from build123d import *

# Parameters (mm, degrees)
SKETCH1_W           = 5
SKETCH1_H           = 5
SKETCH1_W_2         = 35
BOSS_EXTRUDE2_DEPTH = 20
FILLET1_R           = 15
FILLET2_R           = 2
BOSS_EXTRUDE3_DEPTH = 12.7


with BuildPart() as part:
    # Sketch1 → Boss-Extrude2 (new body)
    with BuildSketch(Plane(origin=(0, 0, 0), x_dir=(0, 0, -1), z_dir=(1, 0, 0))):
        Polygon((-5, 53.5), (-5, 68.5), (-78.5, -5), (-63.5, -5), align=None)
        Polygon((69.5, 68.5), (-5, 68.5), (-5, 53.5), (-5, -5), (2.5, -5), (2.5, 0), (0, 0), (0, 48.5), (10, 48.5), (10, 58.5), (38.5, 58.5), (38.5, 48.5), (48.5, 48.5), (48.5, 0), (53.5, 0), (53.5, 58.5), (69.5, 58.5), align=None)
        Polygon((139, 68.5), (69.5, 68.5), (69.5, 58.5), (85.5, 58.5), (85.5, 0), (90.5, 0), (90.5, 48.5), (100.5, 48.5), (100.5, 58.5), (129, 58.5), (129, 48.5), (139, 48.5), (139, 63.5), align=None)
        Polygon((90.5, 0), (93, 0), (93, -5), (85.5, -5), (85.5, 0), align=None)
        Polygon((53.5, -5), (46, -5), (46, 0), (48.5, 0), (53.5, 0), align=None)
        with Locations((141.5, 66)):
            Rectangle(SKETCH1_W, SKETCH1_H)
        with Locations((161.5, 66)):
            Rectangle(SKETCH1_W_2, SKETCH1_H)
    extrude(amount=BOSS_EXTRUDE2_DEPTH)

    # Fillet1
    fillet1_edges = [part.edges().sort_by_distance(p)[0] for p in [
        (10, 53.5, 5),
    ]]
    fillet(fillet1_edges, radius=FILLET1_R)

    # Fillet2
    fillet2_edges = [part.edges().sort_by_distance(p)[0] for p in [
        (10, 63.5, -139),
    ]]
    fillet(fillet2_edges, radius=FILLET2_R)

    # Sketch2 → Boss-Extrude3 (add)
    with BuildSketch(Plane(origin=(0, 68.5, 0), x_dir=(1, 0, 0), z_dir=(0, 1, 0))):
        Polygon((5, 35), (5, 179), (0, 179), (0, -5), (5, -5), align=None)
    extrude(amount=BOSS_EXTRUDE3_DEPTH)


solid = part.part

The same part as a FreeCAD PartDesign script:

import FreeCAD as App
import Part
import Sketcher
from FreeCAD import Vector
Q = App.Units.Quantity


def edges_at(feature, points):
    """Names of the edges that pass closest to the given points."""
    edges = feature.Shape.Edges
    near = lambda p: min(range(len(edges)), key=lambda i: edges[i].distToShape(Part.Vertex(*p))[0])
    return sorted({f"Edge{near(p) + 1}" for p in points})

doc = App.newDocument("Part")
params = doc.addObject("Spreadsheet::Sheet", "Params")
for row, (alias, value) in enumerate([
    ("sketch1_width", "5 mm"),
    ("sketch1_width2", "10 mm"),
    ("sketch1_width3", "15 mm"),
    ("sketch1_height", "32 mm"),
    ("sketch1_height2", "40 mm"),
    ("pad1_length", "20 mm"),
    ("fillet_radius", "15 mm"),
    ("fillet2_radius", "2 mm"),
    ("sketch2_width", "5 mm"),
    ("sketch2_height", "184 mm"),
    ("pad2_length", "12.7 mm"),
], start=1):
    params.set(f"A{row}", alias)
    params.set(f"B{row}", "=" + value)
    params.setAlias(f"B{row}", alias)

body = doc.addObject("PartDesign::Body", "Body")

# Sketch on YZ plane
sketch1 = body.newObject("Sketcher::SketchObject", "Sketch")
sketch1.AttachmentSupport = (doc.getObject("YZ_Plane"), [""])
sketch1.MapMode = "FlatFace"
sketch1.addGeometry([
    Part.LineSegment(Vector(68.5, 5, 0), Vector(-5, 78.5, 0)),  # 0
    Part.LineSegment(Vector(-5, 78.5, 0), Vector(-5, 63.5, 0)),  # 1
    Part.LineSegment(Vector(-5, 63.5, 0), Vector(53.5, 5, 0)),  # 2
    Part.LineSegment(Vector(53.5, 5, 0), Vector(-5, 5, 0)),  # 3
    Part.LineSegment(Vector(-5, 5, 0), Vector(-5, -2.5, 0)),  # 4
    Part.LineSegment(Vector(-5, -2.5, 0), Vector(0, -2.5, 0)),  # 5
    Part.LineSegment(Vector(0, -2.5, 0), Vector(0, 0, 0)),  # 6
    Part.LineSegment(Vector(0, 0, 0), Vector(48.5, 0, 0)),  # 7
    Part.LineSegment(Vector(48.5, 0, 0), Vector(48.5, -10, 0)),  # 8
    Part.LineSegment(Vector(48.5, -10, 0), Vector(58.5, -10, 0)),  # 9
    Part.LineSegment(Vector(58.5, -10, 0), Vector(58.5, -38.5, 0)),  # 10
    Part.LineSegment(Vector(58.5, -38.5, 0), Vector(48.5, -38.5, 0)),  # 11
    Part.LineSegment(Vector(48.5, -38.5, 0), Vector(48.5, -48.5, 0)),  # 12
    Part.LineSegment(Vector(48.5, -48.5, 0), Vector(0, -48.5, 0)),  # 13
    Part.LineSegment(Vector(0, -48.5, 0), Vector(0, -46, 0)),  # 14
    Part.LineSegment(Vector(0, -46, 0), Vector(-5, -46, 0)),  # 15
    Part.LineSegment(Vector(-5, -46, 0), Vector(-5, -53.5, 0)),  # 16
    Part.LineSegment(Vector(-5, -53.5, 0), Vector(58.5, -53.5, 0)),  # 17
    Part.LineSegment(Vector(58.5, -53.5, 0), Vector(58.5, -85.5, 0)),  # 18
    Part.LineSegment(Vector(58.5, -85.5, 0), Vector(-5, -85.5, 0)),  # 19
    Part.LineSegment(Vector(-5, -85.5, 0), Vector(-5, -93, 0)),  # 20
    Part.LineSegment(Vector(-5, -93, 0), Vector(0, -93, 0)),  # 21
    Part.LineSegment(Vector(0, -93, 0), Vector(0, -90.5, 0)),  # 22
    Part.LineSegment(Vector(0, -90.5, 0), Vector(48.5, -90.5, 0)),  # 23
    Part.LineSegment(Vector(48.5, -90.5, 0), Vector(48.5, -100.5, 0)),  # 24
    Part.LineSegment(Vector(48.5, -100.5, 0), Vector(58.5, -100.5, 0)),  # 25
    Part.LineSegment(Vector(58.5, -100.5, 0), Vector(58.5, -129, 0)),  # 26
    Part.LineSegment(Vector(58.5, -129, 0), Vector(48.5, -129, 0)),  # 27
    Part.LineSegment(Vector(48.5, -129, 0), Vector(48.5, -139, 0)),  # 28
    Part.LineSegment(Vector(48.5, -139, 0), Vector(63.5, -139, 0)),  # 29
    Part.LineSegment(Vector(63.5, -139, 0), Vector(63.5, -179, 0)),  # 30
    Part.LineSegment(Vector(63.5, -179, 0), Vector(68.5, -179, 0)),  # 31
    Part.LineSegment(Vector(68.5, -179, 0), Vector(68.5, 5, 0)),  # 32
], False)
sketch1.addConstraint([
    Sketcher.Constraint("Coincident", 0, 2, 1, 1),
    Sketcher.Constraint("Coincident", 1, 2, 2, 1),
    Sketcher.Constraint("Coincident", 2, 2, 3, 1),
    Sketcher.Constraint("Coincident", 3, 2, 4, 1),
    Sketcher.Constraint("Coincident", 4, 2, 5, 1),
    Sketcher.Constraint("Coincident", 5, 2, 6, 1),
    Sketcher.Constraint("Coincident", 6, 2, 7, 1),
    Sketcher.Constraint("Coincident", 7, 2, 8, 1),
    Sketcher.Constraint("Coincident", 8, 2, 9, 1),
    Sketcher.Constraint("Coincident", 9, 2, 10, 1),
    Sketcher.Constraint("Coincident", 10, 2, 11, 1),
    Sketcher.Constraint("Coincident", 11, 2, 12, 1),
    Sketcher.Constraint("Coincident", 12, 2, 13, 1),
    Sketcher.Constraint("Coincident", 13, 2, 14, 1),
    Sketcher.Constraint("Coincident", 14, 2, 15, 1),
    Sketcher.Constraint("Coincident", 15, 2, 16, 1),
    Sketcher.Constraint("Coincident", 16, 2, 17, 1),
    Sketcher.Constraint("Coincident", 17, 2, 18, 1),
    Sketcher.Constraint("Coincident", 18, 2, 19, 1),
    Sketcher.Constraint("Coincident", 19, 2, 20, 1),
    Sketcher.Constraint("Coincident", 20, 2, 21, 1),
    Sketcher.Constraint("Coincident", 21, 2, 22, 1),
    Sketcher.Constraint("Coincident", 22, 2, 23, 1),
    Sketcher.Constraint("Coincident", 23, 2, 24, 1),
    Sketcher.Constraint("Coincident", 24, 2, 25, 1),
    Sketcher.Constraint("Coincident", 25, 2, 26, 1),
    Sketcher.Constraint("Coincident", 26, 2, 27, 1),
    Sketcher.Constraint("Coincident", 27, 2, 28, 1),
    Sketcher.Constraint("Coincident", 28, 2, 29, 1),
    Sketcher.Constraint("Coincident", 29, 2, 30, 1),
    Sketcher.Constraint("Coincident", 30, 2, 31, 1),
    Sketcher.Constraint("Coincident", 31, 2, 32, 1),
    Sketcher.Constraint("Coincident", 32, 2, 0, 1),
    Sketcher.Constraint("Vertical", 1),
    Sketcher.Constraint("Horizontal", 3),
    Sketcher.Constraint("Vertical", 4),
    Sketcher.Constraint("Horizontal", 5),
    Sketcher.Constraint("Vertical", 6),
    Sketcher.Constraint("Horizontal", 7),
    Sketcher.Constraint("Vertical", 8),
    Sketcher.Constraint("Horizontal", 9),
    Sketcher.Constraint("Vertical", 10),
    Sketcher.Constraint("Horizontal", 11),
    Sketcher.Constraint("Vertical", 12),
    Sketcher.Constraint("Horizontal", 13),
    Sketcher.Constraint("Vertical", 14),
    Sketcher.Constraint("Horizontal", 15),
    Sketcher.Constraint("Vertical", 16),
    Sketcher.Constraint("Horizontal", 17),
    Sketcher.Constraint("Vertical", 18),
    Sketcher.Constraint("Horizontal", 19),
    Sketcher.Constraint("Vertical", 20),
    Sketcher.Constraint("Horizontal", 21),
    Sketcher.Constraint("Vertical", 22),
    Sketcher.Constraint("Horizontal", 23),
    Sketcher.Constraint("Vertical", 24),
    Sketcher.Constraint("Horizontal", 25),
    Sketcher.Constraint("Vertical", 26),
    Sketcher.Constraint("Horizontal", 27),
    Sketcher.Constraint("Vertical", 28),
    Sketcher.Constraint("Horizontal", 29),
    Sketcher.Constraint("Vertical", 30),
    Sketcher.Constraint("Horizontal", 31),
    Sketcher.Constraint("Vertical", 32),
    Sketcher.Constraint("Coincident", 6, 2, -1, 1),
    Sketcher.Constraint("PointOnObject", 13, 2, -2),
    Sketcher.Constraint("PointOnObject", 21, 2, -2),
    Sketcher.Constraint("Parallel", 0, 2),
    Sketcher.Constraint("Horizontal", 3, 2, 32, 2),
    Sketcher.Constraint("Vertical", 1, 2, 3, 2),
    Sketcher.Constraint("Vertical", 8, 2, 11, 2),
    Sketcher.Constraint("Vertical", 4, 2, 15, 2),
    Sketcher.Constraint("Vertical", 10, 2, 17, 2),
    Sketcher.Constraint("Vertical", 16, 2, 19, 2),
    Sketcher.Constraint("Vertical", 12, 2, 23, 2),
    Sketcher.Constraint("Vertical", 18, 2, 25, 2),
    Sketcher.Constraint("Vertical", 24, 2, 27, 2),
    Sketcher.Constraint("Equal", 21, 31),
    Sketcher.Constraint("Equal", 29, 1),
    Sketcher.Constraint("Equal", 27, 8),
    Sketcher.Constraint("Equal", 8, 12),
    Sketcher.Constraint("Equal", 6, 14),
    Sketcher.Constraint("Equal", 4, 16),
    Sketcher.Constraint("Equal", 16, 20),
    Sketcher.Constraint("Equal", 14, 22),
    Sketcher.Constraint("Equal", 12, 24),
    Sketcher.Constraint("Equal", 10, 26),
    Sketcher.Constraint("Equal", 24, 28),
    Sketcher.Constraint("DistanceX", 5, 1, 5, 2, Q("5 mm")),
    Sketcher.Constraint("DistanceX", 9, 1, 9, 2, Q("10 mm")),
    Sketcher.Constraint("DistanceX", 29, 1, 29, 2, Q("15 mm")),
    Sketcher.Constraint("DistanceY", 18, 2, 18, 1, Q("32 mm")),
    Sketcher.Constraint("DistanceY", 30, 2, 30, 1, Q("40 mm")),
    Sketcher.Constraint("DistanceY", 32, 1, 32, 2, Q("184 mm")),
    Sketcher.Constraint("Angle", 0, Q("135 deg")),
    Sketcher.Constraint("DistanceX", 3, 2, 3, 1, Q("58.5 mm")),
    Sketcher.Constraint("DistanceY", 4, 2, 4, 1, Q("7.5 mm")),
    Sketcher.Constraint("DistanceY", 6, 1, 6, 2, Q("2.5 mm")),
])
sketch1.setExpression("Constraints[88]", "Params.sketch1_width")
sketch1.setExpression("Constraints[89]", "Params.sketch1_width2")
sketch1.setExpression("Constraints[90]", "Params.sketch1_width3")
sketch1.setExpression("Constraints[91]", "Params.sketch1_height")
sketch1.setExpression("Constraints[92]", "Params.sketch1_height2")
pad1 = body.newObject("PartDesign::Pad", "Pad")
pad1.Profile = sketch1
pad1.setExpression("Length", "Params.pad1_length")
doc.recompute()

fillet = body.newObject("PartDesign::Fillet", "Fillet")
fillet.Base = (pad1, edges_at(pad1, [(10, 53.5, 5)]))
fillet.setExpression("Radius", "Params.fillet_radius")
doc.recompute()

fillet2 = body.newObject("PartDesign::Fillet", "Fillet001")
fillet2.Base = (fillet, edges_at(fillet, [(10, 63.5, -139)]))
fillet2.setExpression("Radius", "Params.fillet2_radius")

# Sketch on XZ plane
sketch2 = body.newObject("Sketcher::SketchObject", "Sketch001")
sketch2.AttachmentSupport = (doc.getObject("XZ_Plane"), [""])
sketch2.MapMode = "FlatFace"
sketch2.AttachmentOffset = App.Placement(Vector(0, 0, -68.5), App.Rotation())
sketch2.addGeometry([
    Part.LineSegment(Vector(5, -179, 0), Vector(0, -179, 0)),
    Part.LineSegment(Vector(0, -179, 0), Vector(0, 5, 0)),
    Part.LineSegment(Vector(0, 5, 0), Vector(5, 5, 0)),
    Part.LineSegment(Vector(5, 5, 0), Vector(5, -179, 0)),
], False)
sketch2.addConstraint([
    Sketcher.Constraint("Coincident", 0, 2, 1, 1),
    Sketcher.Constraint("Coincident", 1, 2, 2, 1),
    Sketcher.Constraint("Coincident", 2, 2, 3, 1),
    Sketcher.Constraint("Coincident", 3, 2, 0, 1),
    Sketcher.Constraint("Horizontal", 0),
    Sketcher.Constraint("Vertical", 1),
    Sketcher.Constraint("Horizontal", 2),
    Sketcher.Constraint("Vertical", 3),
    Sketcher.Constraint("PointOnObject", 0, 2, -2),
    Sketcher.Constraint("DistanceX", 0, 2, 0, 1, Q("5 mm")),
    Sketcher.Constraint("DistanceY", 1, 1, 1, 2, Q("184 mm")),
    Sketcher.Constraint("DistanceY", 0, 2, -1, 1, Q("179 mm")),
])
sketch2.setExpression("Constraints[9]", "Params.sketch2_width")
sketch2.setExpression("Constraints[10]", "Params.sketch2_height")
pad2 = body.newObject("PartDesign::Pad", "Pad001")
pad2.Profile = sketch2
pad2.setExpression("Length", "Params.pad2_length")
pad2.Reversed = True

doc.recompute()
